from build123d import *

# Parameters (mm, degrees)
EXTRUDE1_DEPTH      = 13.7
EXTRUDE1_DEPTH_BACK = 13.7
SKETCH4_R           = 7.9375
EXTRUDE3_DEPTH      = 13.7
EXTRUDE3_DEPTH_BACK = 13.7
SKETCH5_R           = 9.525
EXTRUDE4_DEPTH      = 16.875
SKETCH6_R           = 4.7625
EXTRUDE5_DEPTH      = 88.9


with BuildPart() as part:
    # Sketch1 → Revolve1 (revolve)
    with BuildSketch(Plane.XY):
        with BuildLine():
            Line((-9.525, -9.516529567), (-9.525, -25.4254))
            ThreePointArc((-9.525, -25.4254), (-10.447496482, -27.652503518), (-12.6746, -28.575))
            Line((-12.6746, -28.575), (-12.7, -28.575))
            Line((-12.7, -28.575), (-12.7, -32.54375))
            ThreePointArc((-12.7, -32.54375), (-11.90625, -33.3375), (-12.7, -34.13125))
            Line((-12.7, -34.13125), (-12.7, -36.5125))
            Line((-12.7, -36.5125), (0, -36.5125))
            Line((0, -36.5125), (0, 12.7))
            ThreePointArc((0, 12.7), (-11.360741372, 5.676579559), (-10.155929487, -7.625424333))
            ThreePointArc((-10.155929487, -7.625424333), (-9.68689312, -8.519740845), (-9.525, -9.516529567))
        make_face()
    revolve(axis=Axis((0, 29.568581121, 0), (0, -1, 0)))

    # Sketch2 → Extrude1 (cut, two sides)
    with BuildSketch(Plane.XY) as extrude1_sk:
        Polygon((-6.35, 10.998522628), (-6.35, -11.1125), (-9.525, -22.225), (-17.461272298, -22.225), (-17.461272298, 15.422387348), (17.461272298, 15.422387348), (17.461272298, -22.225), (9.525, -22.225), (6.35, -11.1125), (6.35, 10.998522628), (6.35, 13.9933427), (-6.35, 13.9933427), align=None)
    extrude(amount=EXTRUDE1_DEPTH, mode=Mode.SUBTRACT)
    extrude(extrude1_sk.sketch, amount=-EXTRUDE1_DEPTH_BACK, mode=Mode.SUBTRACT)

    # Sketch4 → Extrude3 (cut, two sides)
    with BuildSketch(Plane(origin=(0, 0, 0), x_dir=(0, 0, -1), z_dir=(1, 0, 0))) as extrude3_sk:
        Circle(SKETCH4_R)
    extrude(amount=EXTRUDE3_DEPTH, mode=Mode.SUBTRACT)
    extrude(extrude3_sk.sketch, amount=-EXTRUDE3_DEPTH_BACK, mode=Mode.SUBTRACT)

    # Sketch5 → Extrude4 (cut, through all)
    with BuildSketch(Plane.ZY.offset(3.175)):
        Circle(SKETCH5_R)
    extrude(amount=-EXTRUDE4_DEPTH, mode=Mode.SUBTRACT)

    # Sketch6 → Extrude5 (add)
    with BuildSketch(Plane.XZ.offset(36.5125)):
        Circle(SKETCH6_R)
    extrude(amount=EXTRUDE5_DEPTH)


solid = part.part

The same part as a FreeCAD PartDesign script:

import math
import FreeCAD as App
import Part
import Sketcher
from FreeCAD import Vector
Q = App.Units.Quantity

doc = App.newDocument("Part")
body = doc.addObject("PartDesign::Body", "Body")

sketch1 = body.newObject("Sketcher::SketchObject", "Sketch")
sketch1.AttachmentSupport = (doc.getObject("XY_Plane"), [""])
sketch1.MapMode = "FlatFace"
sketch1.addGeometry(Part.LineSegment(Vector(-9.525, -9.517, 0), Vector(-9.525, -25.425, 0)), False)
sketch1.addGeometry(Part.ArcOfCircle(Part.Circle(Vector(-12.675, -25.425, 0), Vector(0, 0, 1), 3.15), math.radians(-90), math.radians(0)), False)
sketch1.addGeometry(Part.LineSegment(Vector(-12.675, -28.575, 0), Vector(-12.7, -28.575, 0)), False)
sketch1.addGeometry(Part.LineSegment(Vector(-12.7, -28.575, 0), Vector(-12.7, -32.544, 0)), False)
sketch1.addGeometry(Part.ArcOfCircle(Part.Circle(Vector(-12.7, -33.337, 0), Vector(0, 0, 1), 0.794), math.radians(-90), math.radians(90)), False)
sketch1.addGeometry(Part.LineSegment(Vector(-12.7, -34.131, 0), Vector(-12.7, -36.513, 0)), False)
sketch1.addGeometry(Part.LineSegment(Vector(-12.7, -36.513, 0), Vector(0, -36.513, 0)), False)
sketch1.addGeometry(Part.LineSegment(Vector(0, -36.513, 0), Vector(0, 12.7, 0)), False)
sketch1.addGeometry(Part.ArcOfCircle(Part.Circle(Vector(0, 0, 0), Vector(0, 0, 1), 12.7), math.radians(90), math.radians(217)), False)
sketch1.addGeometry(Part.ArcOfCircle(Part.Circle(Vector(-12.675, -9.517, 0), Vector(0, 0, 1), 3.15), math.radians(0), math.radians(37)), False)
sketch1.addConstraint(Sketcher.Constraint("Tangent", 0, 2, 1, 2))
sketch1.addConstraint(Sketcher.Constraint("Tangent", 1, 1, 2, 1))
sketch1.addConstraint(Sketcher.Constraint("Coincident", 2, 2, 3, 1))
sketch1.addConstraint(Sketcher.Constraint("Coincident", 3, 2, 4, 2))
sketch1.addConstraint(Sketcher.Constraint("Coincident", 4, 1, 5, 1))
sketch1.addConstraint(Sketcher.Constraint("Coincident", 5, 2, 6, 1))
sketch1.addConstraint(Sketcher.Constraint("Coincident", 6, 2, 7, 1))
sketch1.addConstraint(Sketcher.Constraint("Coincident", 7, 2, 8, 1))
sketch1.addConstraint(Sketcher.Constraint("Tangent", 8, 2, 9, 2))
sketch1.addConstraint(Sketcher.Constraint("Tangent", 9, 1, 0, 1))
sketch1.addConstraint(Sketcher.Constraint("Vertical", 0))
sketch1.addConstraint(Sketcher.Constraint("Horizontal", 2))
sketch1.addConstraint(Sketcher.Constraint("Vertical", 3))
sketch1.addConstraint(Sketcher.Constraint("Vertical", 5))
sketch1.addConstraint(Sketcher.Constraint("Horizontal", 6))
sketch1.addConstraint(Sketcher.Constraint("Vertical", 7))
sketch1.addConstraint(Sketcher.Constraint("Coincident", 8, 3, -1, 1))
sketch1.addConstraint(Sketcher.Constraint("Equal", 1, 9))
sketch1.addConstraint(Sketcher.Constraint("PointOnObject", 6, 2, -2))
sketch1.addConstraint(Sketcher.Constraint("Vertical", 4, 3, 2, 2))
sketch1.addConstraint(Sketcher.Constraint("Vertical", 3, 2, 4, 1))
sketch1.addConstraint(Sketcher.Constraint("Radius", 8, Q("0.5 in")))
sketch1.addConstraint(Sketcher.Constraint("DistanceX", 6, 1, 6, 2, Q("0.5 in")))
sketch1.addConstraint(Sketcher.Constraint("Radius", 1, Q("0.124 in")))
sketch1.addConstraint(Sketcher.Constraint("Radius", 4, Q("0.03125 in")))
sketch1.addConstraint(Sketcher.Constraint("DistanceX", 2, 2, 2, 1, Q("0.001 in")))
sketch1.addConstraint(Sketcher.Constraint("DistanceY", 3, 2, 3, 1, Q("0.15625 in")))
sketch1.addConstraint(Sketcher.Constraint("DistanceY", 5, 2, 5, 1, Q("0.09375 in")))
sketch1.addConstraint(Sketcher.Constraint("DistanceY", 7, 1, 7, 2, Q("1.9375 in")))
revolution = body.newObject("PartDesign::Revolution", "Revolution")
revolution.Profile = sketch1
revolution.ReferenceAxis = (sketch1, ["V_Axis"])
revolution.Angle = 360

sketch2 = body.newObject("Sketcher::SketchObject", "Sketch001")
sketch2.AttachmentSupport = (doc.getObject("XY_Plane"), [""])
sketch2.MapMode = "FlatFace"
sketch2.addGeometry(Part.LineSegment(Vector(-6, -11, 0), Vector(-6, 14, 0)), False)
sketch2.addGeometry(Part.LineSegment(Vector(-6, 14, 0), Vector(6, 14, 0)), False)
sketch2.addGeometry(Part.LineSegment(Vector(6, 14, 0), Vector(6, -11, 0)), False)
sketch2.addGeometry(Part.LineSegment(Vector(6, -11, 0), Vector(10, -22, 0)), False)
sketch2.addGeometry(Part.LineSegment(Vector(10, -22, 0), Vector(17, -22, 0)), False)
sketch2.addGeometry(Part.LineSegment(Vector(17, -22, 0), Vector(17, 15, 0)), False)
sketch2.addGeometry(Part.LineSegment(Vector(17, 15, 0), Vector(-17, 15, 0)), False)
sketch2.addGeometry(Part.LineSegment(Vector(-17, 15, 0), Vector(-17, -22, 0)), False)
sketch2.addGeometry(Part.LineSegment(Vector(-17, -22, 0), Vector(-10, -22, 0)), False)
sketch2.addGeometry(Part.LineSegment(Vector(-10, -22, 0), Vector(-6, -11, 0)), False)
sketch2.addConstraint(Sketcher.Constraint("Coincident", 0, 2, 1, 1))
sketch2.addConstraint(Sketcher.Constraint("Coincident", 1, 2, 2, 1))
sketch2.addConstraint(Sketcher.Constraint("Coincident", 2, 2, 3, 1))
sketch2.addConstraint(Sketcher.Constraint("Coincident", 3, 2, 4, 1))
sketch2.addConstraint(Sketcher.Constraint("Coincident", 4, 2, 5, 1))
sketch2.addConstraint(Sketcher.Constraint("Coincident", 5, 2, 6, 1))
sketch2.addConstraint(Sketcher.Constraint("Coincident", 6, 2, 7, 1))
sketch2.addConstraint(Sketcher.Constraint("Coincident", 7, 2, 8, 1))
sketch2.addConstraint(Sketcher.Constraint("Coincident", 8, 2, 9, 1))
sketch2.addConstraint(Sketcher.Constraint("Coincident", 9, 2, 0, 1))
sketch2.addConstraint(Sketcher.Constraint("Vertical", 0))
sketch2.addConstraint(Sketcher.Constraint("Horizontal", 1))
sketch2.addConstraint(Sketcher.Constraint("Vertical", 2))
sketch2.addConstraint(Sketcher.Constraint("Horizontal", 4))
sketch2.addConstraint(Sketcher.Constraint("Vertical", 5))
sketch2.addConstraint(Sketcher.Constraint("Horizontal", 6))
sketch2.addConstraint(Sketcher.Constraint("Vertical", 7))
sketch2.addConstraint(Sketcher.Constraint("Horizontal", 8))
sketch2.addConstraint(Sketcher.Constraint("Symmetric", 4, 2, 7, 2, -2))
sketch2.addConstraint(Sketcher.Constraint("Symmetric", 2, 2, 9, 2, -2))
sketch2.addConstraint(Sketcher.Constraint("Equal", 4, 8))
sketch2.addConstraint(Sketcher.Constraint("DistanceX", 1, 1, 1, 2, Q("0.5 in")))
sketch2.addConstraint(Sketcher.Constraint("DistanceX", 8, 2, 3, 2, Q("0.75 in")))
sketch2.addConstraint(Sketcher.Constraint("DistanceY", 2, 2, -1, 1, Q("0.4375 in")))
sketch2.addConstraint(Sketcher.Constraint("DistanceY", 3, 2, -1, 1, Q("0.875 in")))
sketch2.addConstraint(Sketcher.Constraint("DistanceX", 4, 1, 4, 2, 7.936272))
sketch2.addConstraint(Sketcher.Constraint("DistanceY", 0, 1, 0, 2, 25.105843))
sketch2.addConstraint(Sketcher.Constraint("DistanceY", 5, 1, 5, 2, 37.647387))
pocket1 = body.newObject("PartDesign::Pocket", "Pocket")
pocket1.Profile = sketch2
pocket1.Type = "ThroughAll"
pocket1.Midplane = True

sketch3 = body.newObject("Sketcher::SketchObject", "Sketch002")
sketch3.AttachmentSupport = (doc.getObject("YZ_Plane"), [""])
sketch3.MapMode = "FlatFace"
sketch3.addGeometry(Part.Circle(Vector(0, 0, 0), Vector(0, 0, 1), 8), False)
sketch3.addConstraint(Sketcher.Constraint("Coincident", 0, 3, -1, 1))
sketch3.addConstraint(Sketcher.Constraint("Diameter", 0, Q("0.625 in")))
pocket2 = body.newObject("PartDesign::Pocket", "Pocket001")
pocket2.Profile = sketch3
pocket2.Type = "ThroughAll"
pocket2.Midplane = True

sketch4 = body.newObject("Sketcher::SketchObject", "Sketch003")
sketch4.AttachmentSupport = (doc.getObject("YZ_Plane"), [""])
sketch4.MapMode = "FlatFace"
sketch4.AttachmentOffset = App.Placement(Vector(0, 0, -0.125 * 25.4), App.Rotation())
sketch4.addGeometry(Part.Circle(Vector(0, 0, 0), Vector(0, 0, 1), 10), False)
sketch4.addConstraint(Sketcher.Constraint("Coincident", 0, 3, -1, 1))
sketch4.addConstraint(Sketcher.Constraint("Diameter", 0, Q("0.75 in")))
pocket3 = body.newObject("PartDesign::Pocket", "Pocket002")
pocket3.Profile = sketch4
pocket3.Type = "ThroughAll"
pocket3.Reversed = True

sketch5 = body.newObject("Sketcher::SketchObject", "Sketch004")
sketch5.AttachmentSupport = (doc.getObject("XZ_Plane"), [""])
sketch5.MapMode = "FlatFace"
sketch5.AttachmentOffset = App.Placement(Vector(0, 0, 1.4375 * 25.4), App.Rotation())
sketch5.addGeometry(Part.Circle(Vector(0, 0, 0), Vector(0, 0, 1), 4.8), False)
sketch5.addConstraint(Sketcher.Constraint("Coincident", 0, 3, -1, 1))
sketch5.addConstraint(Sketcher.Constraint("Diameter", 0, Q("0.375 in")))
pad1 = body.newObject("PartDesign::Pad", "Pad")
pad1.Profile = sketch5
pad1.Length = Q("3.5 in")

doc.recompute()
